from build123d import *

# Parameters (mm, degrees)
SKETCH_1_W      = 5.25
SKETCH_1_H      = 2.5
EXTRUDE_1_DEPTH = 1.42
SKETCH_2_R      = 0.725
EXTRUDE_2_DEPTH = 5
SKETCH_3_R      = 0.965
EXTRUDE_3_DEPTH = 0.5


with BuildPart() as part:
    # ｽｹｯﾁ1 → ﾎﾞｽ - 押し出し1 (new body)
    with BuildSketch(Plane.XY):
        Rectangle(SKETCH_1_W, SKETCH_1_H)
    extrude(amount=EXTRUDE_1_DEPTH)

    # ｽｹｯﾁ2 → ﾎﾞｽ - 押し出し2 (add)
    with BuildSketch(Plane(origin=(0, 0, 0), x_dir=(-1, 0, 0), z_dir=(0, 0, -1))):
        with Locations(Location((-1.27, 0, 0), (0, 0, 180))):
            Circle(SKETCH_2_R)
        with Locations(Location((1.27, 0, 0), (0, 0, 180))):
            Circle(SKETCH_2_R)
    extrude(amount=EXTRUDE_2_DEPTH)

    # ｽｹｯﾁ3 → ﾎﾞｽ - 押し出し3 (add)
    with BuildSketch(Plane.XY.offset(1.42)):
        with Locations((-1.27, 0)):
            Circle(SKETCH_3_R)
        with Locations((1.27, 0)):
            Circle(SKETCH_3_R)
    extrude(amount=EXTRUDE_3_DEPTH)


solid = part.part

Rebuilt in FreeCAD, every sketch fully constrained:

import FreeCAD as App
import Part
import Sketcher


def add_polygon(sketch, points):
    """Adds a closed chain of lines whose ends are joined by coincident constraints."""
    first, n = sketch.GeometryCount, len(points)
    for a, b in zip(points, points[1:] + points[:1]):
        sketch.addGeometry(Part.LineSegment(App.Vector(*a, 0), App.Vector(*b, 0)), False)
    for i in range(n):
        sketch.addConstraint(Sketcher.Constraint("Coincident", first + i, 2, first + (i + 1) % n, 1))

doc = App.newDocument("Part")
body = doc.addObject("PartDesign::Body", "Body")

# Sketch on XY plane
sketch1 = body.newObject("Sketcher::SketchObject", "Sketch")
sketch1.AttachmentSupport = (doc.getObject("XY_Plane"), [""])
sketch1.MapMode = "FlatFace"
add_polygon(sketch1, [(-2.6, 1.2), (-2.6, -1.2), (2.6, -1.2), (2.6, 1.2)])  # lines 0-3
sketch1.addConstraint(Sketcher.Constraint("Vertical", 0))
sketch1.addConstraint(Sketcher.Constraint("Horizontal", 1))
sketch1.addConstraint(Sketcher.Constraint("Vertical", 2))
sketch1.addConstraint(Sketcher.Constraint("Horizontal", 3))
sketch1.addConstraint(Sketcher.Constraint("Symmetric", 0, 2, 2, 2, -1, 1))
sketch1.addConstraint(Sketcher.Constraint("DistanceY", 0, 2, 0, 1, 2.5))
sketch1.addConstraint(Sketcher.Constraint("DistanceX", 1, 1, 1, 2, 5.25))
pad1 = body.newObject("PartDesign::Pad", "Pad")
pad1.Profile = sketch1
pad1.Length = 1.42

# Sketch on XY plane
sketch2 = body.newObject("Sketcher::SketchObject", "Sketch001")
sketch2.AttachmentSupport = (doc.getObject("XY_Plane"), [""])
sketch2.MapMode = "FlatFace"
sketch2.addGeometry(Part.Circle(App.Vector(1.3, 0, 0), App.Vector(0, 0, 1), 0.7), False)
sketch2.addGeometry(Part.Circle(App.Vector(-1.3, 0, 0), App.Vector(0, 0, 1), 0.7), False)
sketch2.addConstraint(Sketcher.Constraint("Equal", 0, 1))
sketch2.addConstraint(Sketcher.Constraint("Symmetric", 0, 3, 1, 3, -1, 1))
sketch2.addConstraint(Sketcher.Constraint("PointOnObject", 0, 3, -1))
sketch2.addConstraint(Sketcher.Constraint("Diameter", 0, 1.45))
sketch2.addConstraint(Sketcher.Constraint("DistanceX", -1, 1, 0, 3, 1.27))
pad2 = body.newObject("PartDesign::Pad", "Pad001")
pad2.Profile = sketch2
pad2.Length = 5
pad2.Reversed = True

# Sketch on XY plane
sketch3 = body.newObject("Sketcher::SketchObject", "Sketch002")
sketch3.AttachmentSupport = (doc.getObject("XY_Plane"), [""])
sketch3.MapMode = "FlatFace"
sketch3.AttachmentOffset = App.Placement(App.Vector(0, 0, 1.42), App.Rotation())
sketch3.addGeometry(Part.Circle(App.Vector(-1.3, 0, 0), App.Vector(0, 0, 1), 1), False)
sketch3.addGeometry(Part.Circle(App.Vector(1.3, 0, 0), App.Vector(0, 0, 1), 1), False)
sketch3.addConstraint(Sketcher.Constraint("Equal", 0, 1))
sketch3.addConstraint(Sketcher.Constraint("Symmetric", 0, 3, 1, 3, -1, 1))
sketch3.addConstraint(Sketcher.Constraint("PointOnObject", 0, 3, -1))
sketch3.addConstraint(Sketcher.Constraint("Diameter", 0, 1.93))
sketch3.addConstraint(Sketcher.Constraint("DistanceX", 0, 3, -1, 1, 1.27))
pad3 = body.newObject("PartDesign::Pad", "Pad002")
pad3.Profile = sketch3
pad3.Length = 0.5

doc.recompute()
